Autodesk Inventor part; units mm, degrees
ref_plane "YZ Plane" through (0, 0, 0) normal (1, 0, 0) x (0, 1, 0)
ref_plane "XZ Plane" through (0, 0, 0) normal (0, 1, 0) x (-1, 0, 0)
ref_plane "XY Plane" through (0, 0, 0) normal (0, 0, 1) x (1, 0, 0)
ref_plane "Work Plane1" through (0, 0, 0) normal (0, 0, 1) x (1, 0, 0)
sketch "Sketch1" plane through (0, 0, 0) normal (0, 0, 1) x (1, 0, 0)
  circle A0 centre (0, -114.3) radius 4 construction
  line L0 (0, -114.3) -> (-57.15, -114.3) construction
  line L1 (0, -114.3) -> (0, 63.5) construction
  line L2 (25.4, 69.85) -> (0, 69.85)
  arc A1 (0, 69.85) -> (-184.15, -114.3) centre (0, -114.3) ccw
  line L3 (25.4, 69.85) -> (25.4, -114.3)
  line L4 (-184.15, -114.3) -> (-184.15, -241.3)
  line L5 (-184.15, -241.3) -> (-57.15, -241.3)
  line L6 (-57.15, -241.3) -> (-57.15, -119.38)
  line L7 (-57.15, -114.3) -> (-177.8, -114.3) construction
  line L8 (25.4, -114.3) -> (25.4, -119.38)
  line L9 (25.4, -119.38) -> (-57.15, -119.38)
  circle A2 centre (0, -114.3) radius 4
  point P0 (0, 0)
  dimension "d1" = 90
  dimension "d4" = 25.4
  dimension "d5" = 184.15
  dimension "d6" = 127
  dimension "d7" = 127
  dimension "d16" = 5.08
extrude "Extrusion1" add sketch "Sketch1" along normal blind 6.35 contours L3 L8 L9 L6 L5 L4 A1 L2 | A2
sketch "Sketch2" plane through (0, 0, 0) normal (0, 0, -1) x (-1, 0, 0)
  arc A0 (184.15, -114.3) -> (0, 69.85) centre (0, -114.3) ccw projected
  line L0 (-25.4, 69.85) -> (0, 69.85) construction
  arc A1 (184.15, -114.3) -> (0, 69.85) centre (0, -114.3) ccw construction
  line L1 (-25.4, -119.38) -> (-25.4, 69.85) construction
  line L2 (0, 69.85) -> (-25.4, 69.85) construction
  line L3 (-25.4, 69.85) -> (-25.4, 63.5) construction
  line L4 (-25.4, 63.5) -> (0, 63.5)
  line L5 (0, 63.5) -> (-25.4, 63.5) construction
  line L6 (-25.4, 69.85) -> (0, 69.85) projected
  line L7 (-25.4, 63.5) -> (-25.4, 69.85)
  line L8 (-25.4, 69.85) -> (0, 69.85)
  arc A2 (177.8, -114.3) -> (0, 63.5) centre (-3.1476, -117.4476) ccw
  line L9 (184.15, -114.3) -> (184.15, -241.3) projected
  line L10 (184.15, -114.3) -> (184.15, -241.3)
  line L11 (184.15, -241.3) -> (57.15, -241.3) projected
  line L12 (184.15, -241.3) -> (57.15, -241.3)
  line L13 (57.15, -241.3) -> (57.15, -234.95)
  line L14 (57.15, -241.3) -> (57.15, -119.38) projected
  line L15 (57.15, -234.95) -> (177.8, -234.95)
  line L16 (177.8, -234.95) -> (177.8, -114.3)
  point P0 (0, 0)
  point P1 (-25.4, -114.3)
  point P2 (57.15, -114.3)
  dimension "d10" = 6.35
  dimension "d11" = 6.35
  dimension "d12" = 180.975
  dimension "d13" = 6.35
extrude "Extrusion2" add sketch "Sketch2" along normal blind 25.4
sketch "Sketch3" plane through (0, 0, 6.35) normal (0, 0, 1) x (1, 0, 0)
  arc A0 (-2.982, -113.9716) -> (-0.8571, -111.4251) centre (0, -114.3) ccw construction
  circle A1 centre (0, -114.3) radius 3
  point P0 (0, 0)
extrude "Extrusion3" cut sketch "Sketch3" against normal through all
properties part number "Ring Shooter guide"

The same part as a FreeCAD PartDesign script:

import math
import FreeCAD as App
import Part
import Sketcher
Q = App.Units.Quantity

doc = App.newDocument("Part")
body = doc.addObject("PartDesign::Body", "Body")

sketch1 = body.newObject("Sketcher::SketchObject", "Sketch")
sketch1.AttachmentSupport = (doc.getObject("XY_Plane"), [""])
sketch1.MapMode = "FlatFace"
sketch1.addGeometry(Part.LineSegment(App.Vector(25, 70, 0), App.Vector(0, 70, 0)), False)
sketch1.addGeometry(Part.ArcOfCircle(Part.Circle(App.Vector(0, -114, 0), App.Vector(0, 0, 1), 184), math.radians(90), math.radians(180)), False)
sketch1.addGeometry(Part.LineSegment(App.Vector(-184, -114, 0), App.Vector(-184, -241, 0)), False)
sketch1.addGeometry(Part.LineSegment(App.Vector(-184, -241, 0), App.Vector(-57, -241, 0)), False)
sketch1.addGeometry(Part.LineSegment(App.Vector(-57, -241, 0), App.Vector(-57, -119, 0)), False)
sketch1.addGeometry(Part.LineSegment(App.Vector(-57, -119, 0), App.Vector(25, -119, 0)), False)
sketch1.addGeometry(Part.LineSegment(App.Vector(25, -119, 0), App.Vector(25, 70, 0)), False)
sketch1.addConstraint(Sketcher.Constraint("Tangent", 0, 2, 1, 1))
sketch1.addConstraint(Sketcher.Constraint("Tangent", 1, 2, 2, 1))
sketch1.addConstraint(Sketcher.Constraint("Coincident", 2, 2, 3, 1))
sketch1.addConstraint(Sketcher.Constraint("Coincident", 3, 2, 4, 1))
sketch1.addConstraint(Sketcher.Constraint("Coincident", 4, 2, 5, 1))
sketch1.addConstraint(Sketcher.Constraint("Coincident", 5, 2, 6, 1))
sketch1.addConstraint(Sketcher.Constraint("Coincident", 6, 2, 0, 1))
sketch1.addConstraint(Sketcher.Constraint("Horizontal", 0))
sketch1.addConstraint(Sketcher.Constraint("Vertical", 2))
sketch1.addConstraint(Sketcher.Constraint("Horizontal", 3))
sketch1.addConstraint(Sketcher.Constraint("Vertical", 4))
sketch1.addConstraint(Sketcher.Constraint("Horizontal", 5))
sketch1.addConstraint(Sketcher.Constraint("Vertical", 6))
sketch1.addConstraint(Sketcher.Constraint("PointOnObject", 1, 3, -2))
sketch1.addConstraint(Sketcher.Constraint("Equal", 3, 2))
sketch1.addConstraint(Sketcher.Constraint("DistanceX", 0, 2, 0, 1, Q("1 in")))
sketch1.addConstraint(Sketcher.Constraint("DistanceX", 3, 1, 3, 2, Q("5 in")))
sketch1.addConstraint(Sketcher.Constraint("Radius", 1, Q("7.25 in")))
sketch1.addConstraint(Sketcher.Constraint("DistanceY", 4, 2, 1, 3, Q("0.2 in")))
sketch1.addConstraint(Sketcher.Constraint("DistanceY", 1, 3, -1, 1, Q("4.5 in")))
pad1 = body.newObject("PartDesign::Pad", "Pad")
pad1.Profile = sketch1
pad1.Length = Q("0.25 in")

sketch2 = body.newObject("Sketcher::SketchObject", "Sketch001")
sketch2.AttachmentSupport = (doc.getObject("XY_Plane"), [""])
sketch2.MapMode = "FlatFace"
sketch2.addGeometry(Part.LineSegment(App.Vector(-184, -241, 0), App.Vector(-184, -114, 0)), False)
sketch2.addGeometry(Part.ArcOfCircle(Part.Circle(App.Vector(0, -114, 0), App.Vector(0, 0, 1), 184), math.radians(90), math.radians(180)), False)
sketch2.addGeometry(Part.LineSegment(App.Vector(0, 70, 0), App.Vector(25, 70, 0)), False)
sketch2.addGeometry(Part.LineSegment(App.Vector(25, 70, 0), App.Vector(25, 64, 0)), False)
sketch2.addGeometry(Part.LineSegment(App.Vector(25, 64, 0), App.Vector(0, 64, 0)), False)
sketch2.addGeometry(Part.ArcOfCircle(Part.Circle(App.Vector(3, -117, 0), App.Vector(0, 0, 1), 181), math.radians(91), math.radians(179)), False)
sketch2.addGeometry(Part.LineSegment(App.Vector(-178, -114, 0), App.Vector(-178, -235, 0)), False)
sketch2.addGeometry(Part.LineSegment(App.Vector(-178, -235, 0), App.Vector(-57, -235, 0)), False)
sketch2.addGeometry(Part.LineSegment(App.Vector(-57, -235, 0), App.Vector(-57, -241, 0)), False)
sketch2.addGeometry(Part.LineSegment(App.Vector(-57, -241, 0), App.Vector(-184, -241, 0)), False)
sketch2.addConstraint(Sketcher.Constraint("Tangent", 0, 2, 1, 2))
sketch2.addConstraint(Sketcher.Constraint("Tangent", 1, 1, 2, 1))
sketch2.addConstraint(Sketcher.Constraint("Coincident", 2, 2, 3, 1))
sketch2.addConstraint(Sketcher.Constraint("Coincident", 3, 2, 4, 1))
sketch2.addConstraint(Sketcher.Constraint("Coincident", 4, 2, 5, 1))
sketch2.addConstraint(Sketcher.Constraint("Coincident", 5, 2, 6, 1))
sketch2.addConstraint(Sketcher.Constraint("Coincident", 6, 2, 7, 1))
sketch2.addConstraint(Sketcher.Constraint("Coincident", 7, 2, 8, 1))
sketch2.addConstraint(Sketcher.Constraint("Coincident", 8, 2, 9, 1))
sketch2.addConstraint(Sketcher.Constraint("Coincident", 9, 2, 0, 1))
sketch2.addConstraint(Sketcher.Constraint("Vertical", 0))
sketch2.addConstraint(Sketcher.Constraint("Horizontal", 2))
sketch2.addConstraint(Sketcher.Constraint("Vertical", 3))
sketch2.addConstraint(Sketcher.Constraint("Horizontal", 4))
sketch2.addConstraint(Sketcher.Constraint("Vertical", 6))
sketch2.addConstraint(Sketcher.Constraint("Horizontal", 7))
sketch2.addConstraint(Sketcher.Constraint("Vertical", 8))
sketch2.addConstraint(Sketcher.Constraint("Horizontal", 9))
sketch2.addConstraint(Sketcher.Constraint("PointOnObject", 1, 3, -2))
sketch2.addConstraint(Sketcher.Constraint("PointOnObject", 4, 2, -2))
sketch2.addConstraint(Sketcher.Constraint("Horizontal", 0, 2, 5, 2))
sketch2.addConstraint(Sketcher.Constraint("Equal", 9, 0))
sketch2.addConstraint(Sketcher.Constraint("Equal", 7, 6))
sketch2.addConstraint(Sketcher.Constraint("Equal", 3, 8))
sketch2.addConstraint(Sketcher.Constraint("Radius", 5, Q("7.125 in")))
sketch2.addConstraint(Sketcher.Constraint("DistanceY", 3, 2, 3, 1, Q("0.25 in")))
sketch2.addConstraint(Sketcher.Constraint("DistanceX", 2, 1, 2, 2, Q("1 in")))
sketch2.addConstraint(Sketcher.Constraint("DistanceX", 9, 2, 9, 1, Q("5 in")))
sketch2.addConstraint(Sketcher.Constraint("Radius", 1, Q("7.25 in")))
sketch2.addConstraint(Sketcher.Constraint("DistanceY", 1, 3, -1, 1, Q("4.5 in")))
pad2 = body.newObject("PartDesign::Pad", "Pad001")
pad2.Profile = sketch2
pad2.Length = Q("1 in")
pad2.Reversed = True

sketch3 = body.newObject("Sketcher::SketchObject", "Sketch002")
sketch3.AttachmentSupport = (doc.getObject("XY_Plane"), [""])
sketch3.MapMode = "FlatFace"
sketch3.AttachmentOffset = App.Placement(App.Vector(0, 0, 0.25 * 25.4), App.Rotation())
sketch3.addGeometry(Part.Circle(App.Vector(0, -114.3, 0), App.Vector(0, 0, 1), 3), False)
sketch3.addConstraint(Sketcher.Constraint("PointOnObject", 0, 3, -2))
sketch3.addConstraint(Sketcher.Constraint("DistanceY", 0, 3, -1, 1, Q("4.5 in")))
sketch3.addConstraint(Sketcher.Constraint("Diameter", 0, 6.0))
pocket1 = body.newObject("PartDesign::Pocket", "Pocket")
pocket1.Profile = sketch3
pocket1.Type = "ThroughAll"

doc.recompute()
